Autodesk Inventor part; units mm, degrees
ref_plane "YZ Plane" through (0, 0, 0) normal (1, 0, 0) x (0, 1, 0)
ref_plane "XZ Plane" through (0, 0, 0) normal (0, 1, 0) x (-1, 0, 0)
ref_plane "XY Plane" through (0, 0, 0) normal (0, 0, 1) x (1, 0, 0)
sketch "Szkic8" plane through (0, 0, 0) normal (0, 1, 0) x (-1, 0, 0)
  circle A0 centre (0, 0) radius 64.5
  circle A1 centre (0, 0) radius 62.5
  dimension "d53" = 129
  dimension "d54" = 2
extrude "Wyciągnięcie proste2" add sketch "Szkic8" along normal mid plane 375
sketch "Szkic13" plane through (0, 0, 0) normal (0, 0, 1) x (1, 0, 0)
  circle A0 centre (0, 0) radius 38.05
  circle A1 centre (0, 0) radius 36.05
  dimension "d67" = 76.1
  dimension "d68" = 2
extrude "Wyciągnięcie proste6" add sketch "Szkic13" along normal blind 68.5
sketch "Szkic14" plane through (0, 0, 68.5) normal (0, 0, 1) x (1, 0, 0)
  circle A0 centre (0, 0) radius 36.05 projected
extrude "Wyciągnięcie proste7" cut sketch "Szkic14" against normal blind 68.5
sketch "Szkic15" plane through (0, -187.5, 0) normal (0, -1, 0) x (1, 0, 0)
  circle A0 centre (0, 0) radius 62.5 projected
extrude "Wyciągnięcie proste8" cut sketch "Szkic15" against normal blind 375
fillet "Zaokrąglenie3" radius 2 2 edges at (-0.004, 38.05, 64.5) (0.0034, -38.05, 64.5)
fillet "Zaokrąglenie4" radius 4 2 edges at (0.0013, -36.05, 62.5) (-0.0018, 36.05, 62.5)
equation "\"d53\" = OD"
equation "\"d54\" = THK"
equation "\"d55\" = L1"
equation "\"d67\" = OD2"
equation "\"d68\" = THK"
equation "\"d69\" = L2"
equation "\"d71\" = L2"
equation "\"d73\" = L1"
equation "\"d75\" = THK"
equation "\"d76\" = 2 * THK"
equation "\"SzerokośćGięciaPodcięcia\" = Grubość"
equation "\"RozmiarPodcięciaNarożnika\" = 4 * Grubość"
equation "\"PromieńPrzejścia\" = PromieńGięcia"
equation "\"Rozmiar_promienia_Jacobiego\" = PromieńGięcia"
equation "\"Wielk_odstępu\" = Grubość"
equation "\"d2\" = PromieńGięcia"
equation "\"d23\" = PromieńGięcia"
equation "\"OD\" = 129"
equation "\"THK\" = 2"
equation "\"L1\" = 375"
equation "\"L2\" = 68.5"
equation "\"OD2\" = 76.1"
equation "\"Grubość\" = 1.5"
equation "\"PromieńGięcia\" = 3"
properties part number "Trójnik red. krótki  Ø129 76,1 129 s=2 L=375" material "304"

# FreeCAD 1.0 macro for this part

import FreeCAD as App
import Part
import Sketcher
from FreeCAD import Vector
Q = App.Units.Quantity


def edges_at(feature, points):
    """Names of the edges that pass closest to the given points."""
    edges = feature.Shape.Edges
    near = lambda p: min(range(len(edges)), key=lambda i: edges[i].distToShape(Part.Vertex(*p))[0])
    return sorted({f"Edge{near(p) + 1}" for p in points})

doc = App.newDocument("Part")
params = doc.addObject("Spreadsheet::Sheet", "Params")
for row, (alias, value) in enumerate([
    ("sketch1_diameter", "129 mm"),
    ("sketch1_diameter2", "125 mm"),
    ("pad1_length", "375 mm"),
    ("sketch2_diameter", "76.1 mm"),
    ("sketch2_diameter2", "72.1 mm"),
    ("pad2_length", "68.5 mm"),
    ("sketch3_diameter", "72.1 mm"),
    ("pocket1_length", "68.5 mm"),
    ("sketch4_diameter", "125 mm"),
    ("pocket2_length", "375 mm"),
    ("fillet_radius", "2 mm"),
    ("fillet2_radius", "4 mm"),
], start=1):
    params.set(f"A{row}", alias)
    params.set(f"B{row}", "=" + value)
    params.setAlias(f"B{row}", alias)

body = doc.addObject("PartDesign::Body", "Body")

# Sketch on XZ plane
sketch1 = body.newObject("Sketcher::SketchObject", "Sketch")
sketch1.AttachmentSupport = (doc.getObject("XZ_Plane"), [""])
sketch1.MapMode = "FlatFace"
sketch1.addGeometry([
    Part.Circle(Vector(0, 0, 0), Vector(0, 0, 1), 64),
    Part.Circle(Vector(0, 0, 0), Vector(0, 0, 1), 62),
], False)
sketch1.addConstraint([
    Sketcher.Constraint("Coincident", 0, 3, -1, 1),
    Sketcher.Constraint("Coincident", 1, 3, -1, 1),
    Sketcher.Constraint("Diameter", 0, Q("129 mm")),
    Sketcher.Constraint("Diameter", 1, Q("125 mm")),
])
sketch1.setExpression("Constraints[2]", "Params.sketch1_diameter")
sketch1.setExpression("Constraints[3]", "Params.sketch1_diameter2")
pad1 = body.newObject("PartDesign::Pad", "Pad")
pad1.Profile = sketch1
pad1.setExpression("Length", "Params.pad1_length")
pad1.Midplane = True

# Sketch on XY plane
sketch2 = body.newObject("Sketcher::SketchObject", "Sketch001")
sketch2.AttachmentSupport = (doc.getObject("XY_Plane"), [""])
sketch2.MapMode = "FlatFace"
sketch2.addGeometry([
    Part.Circle(Vector(0, 0, 0), Vector(0, 0, 1), 38),
    Part.Circle(Vector(0, 0, 0), Vector(0, 0, 1), 36),
], False)
sketch2.addConstraint([
    Sketcher.Constraint("Coincident", 0, 3, -1, 1),
    Sketcher.Constraint("Coincident", 1, 3, -1, 1),
    Sketcher.Constraint("Diameter", 0, Q("76.1 mm")),
    Sketcher.Constraint("Diameter", 1, Q("72.1 mm")),
])
sketch2.setExpression("Constraints[2]", "Params.sketch2_diameter")
sketch2.setExpression("Constraints[3]", "Params.sketch2_diameter2")
pad2 = body.newObject("PartDesign::Pad", "Pad001")
pad2.Profile = sketch2
pad2.setExpression("Length", "Params.pad2_length")

# Sketch on XY plane
sketch3 = body.newObject("Sketcher::SketchObject", "Sketch002")
sketch3.AttachmentSupport = (doc.getObject("XY_Plane"), [""])
sketch3.MapMode = "FlatFace"
sketch3.AttachmentOffset = App.Placement(Vector(0, 0, 68.5), App.Rotation())
sketch3.addGeometry(Part.Circle(Vector(0, 0, 0), Vector(0, 0, 1), 36), False)
sketch3.addConstraint([
    Sketcher.Constraint("Coincident", 0, 3, -1, 1),
    Sketcher.Constraint("Diameter", 0, Q("72.1 mm")),
])
sketch3.setExpression("Constraints[1]", "Params.sketch3_diameter")
pocket1 = body.newObject("PartDesign::Pocket", "Pocket")
pocket1.Profile = sketch3
pocket1.setExpression("Length", "Params.pocket1_length")

# Sketch on XZ plane
sketch4 = body.newObject("Sketcher::SketchObject", "Sketch003")
sketch4.AttachmentSupport = (doc.getObject("XZ_Plane"), [""])
sketch4.MapMode = "FlatFace"
sketch4.AttachmentOffset = App.Placement(Vector(0, 0, 187.5), App.Rotation())
sketch4.addGeometry(Part.Circle(Vector(0, 0, 0), Vector(0, 0, 1), 62), False)
sketch4.addConstraint([
    Sketcher.Constraint("Coincident", 0, 3, -1, 1),
    Sketcher.Constraint("Diameter", 0, Q("125 mm")),
])
sketch4.setExpression("Constraints[1]", "Params.sketch4_diameter")
pocket2 = body.newObject("PartDesign::Pocket", "Pocket001")
pocket2.Profile = sketch4
pocket2.setExpression("Length", "Params.pocket2_length")
doc.recompute()

fillet = body.newObject("PartDesign::Fillet", "Fillet")
fillet.Base = (pocket2, edges_at(pocket2, [(-0.004, 38.05, 64.5), (0.003, -38.05, 64.5)]))
fillet.setExpression("Radius", "Params.fillet_radius")
doc.recompute()

fillet2 = body.newObject("PartDesign::Fillet", "Fillet001")
fillet2.Base = (fillet, edges_at(fillet, [(0.001, -36.05, 62.5), (-0.002, 36.05, 62.5)]))
fillet2.setExpression("Radius", "Params.fillet2_radius")

doc.recompute()
